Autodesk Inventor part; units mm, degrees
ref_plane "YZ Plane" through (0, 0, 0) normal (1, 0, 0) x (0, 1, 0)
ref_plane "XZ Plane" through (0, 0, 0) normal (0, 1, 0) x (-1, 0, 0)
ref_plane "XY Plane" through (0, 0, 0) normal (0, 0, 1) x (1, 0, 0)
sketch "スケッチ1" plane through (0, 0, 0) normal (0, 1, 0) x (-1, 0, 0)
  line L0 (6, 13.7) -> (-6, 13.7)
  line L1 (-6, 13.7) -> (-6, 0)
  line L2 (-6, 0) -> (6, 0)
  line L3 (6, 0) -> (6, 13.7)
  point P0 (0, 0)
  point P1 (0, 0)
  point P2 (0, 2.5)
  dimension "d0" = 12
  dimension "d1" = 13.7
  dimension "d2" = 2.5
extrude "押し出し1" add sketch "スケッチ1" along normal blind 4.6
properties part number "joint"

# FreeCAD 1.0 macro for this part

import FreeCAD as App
import Part
import Sketcher

V = App.Vector
Q = App.Units.Quantity


def add_polygon(sketch, points):
    """Adds a closed chain of lines whose ends are joined by coincident constraints."""
    first, n = sketch.GeometryCount, len(points)
    for a, b in zip(points, points[1:] + points[:1]):
        sketch.addGeometry(Part.LineSegment(App.Vector(*a, 0), App.Vector(*b, 0)), False)
    for i in range(n):
        sketch.addConstraint(Sketcher.Constraint("Coincident", first + i, 2, first + (i + 1) % n, 1))

doc = App.newDocument("Part")
body = doc.addObject("PartDesign::Body", "Body")

# Sketch on XZ plane
sketch1 = body.newObject("Sketcher::SketchObject", "Sketch")
sketch1.AttachmentSupport = (doc.getObject("XZ_Plane"), [""])
sketch1.MapMode = "FlatFace"
add_polygon(sketch1, [(-6, 0), (-6, 14), (6, 14), (6, 0)])  # lines 0-3
sketch1.addConstraint(Sketcher.Constraint("Vertical", 0))
sketch1.addConstraint(Sketcher.Constraint("Horizontal", 1))
sketch1.addConstraint(Sketcher.Constraint("Vertical", 2))
sketch1.addConstraint(Sketcher.Constraint("Horizontal", 3))
sketch1.addConstraint(Sketcher.Constraint("Symmetric", 2, 2, 3, 2, -1, 1))
sketch1.addConstraint(Sketcher.Constraint("DistanceX", 1, 1, 1, 2, Q("12 mm")))
sketch1.addConstraint(Sketcher.Constraint("DistanceY", 0, 1, 0, 2, Q("13.7 mm")))
pad1 = body.newObject("PartDesign::Pad", "Pad")
pad1.Profile = sketch1
pad1.Length = 4.6
pad1.Reversed = True

doc.recompute()
